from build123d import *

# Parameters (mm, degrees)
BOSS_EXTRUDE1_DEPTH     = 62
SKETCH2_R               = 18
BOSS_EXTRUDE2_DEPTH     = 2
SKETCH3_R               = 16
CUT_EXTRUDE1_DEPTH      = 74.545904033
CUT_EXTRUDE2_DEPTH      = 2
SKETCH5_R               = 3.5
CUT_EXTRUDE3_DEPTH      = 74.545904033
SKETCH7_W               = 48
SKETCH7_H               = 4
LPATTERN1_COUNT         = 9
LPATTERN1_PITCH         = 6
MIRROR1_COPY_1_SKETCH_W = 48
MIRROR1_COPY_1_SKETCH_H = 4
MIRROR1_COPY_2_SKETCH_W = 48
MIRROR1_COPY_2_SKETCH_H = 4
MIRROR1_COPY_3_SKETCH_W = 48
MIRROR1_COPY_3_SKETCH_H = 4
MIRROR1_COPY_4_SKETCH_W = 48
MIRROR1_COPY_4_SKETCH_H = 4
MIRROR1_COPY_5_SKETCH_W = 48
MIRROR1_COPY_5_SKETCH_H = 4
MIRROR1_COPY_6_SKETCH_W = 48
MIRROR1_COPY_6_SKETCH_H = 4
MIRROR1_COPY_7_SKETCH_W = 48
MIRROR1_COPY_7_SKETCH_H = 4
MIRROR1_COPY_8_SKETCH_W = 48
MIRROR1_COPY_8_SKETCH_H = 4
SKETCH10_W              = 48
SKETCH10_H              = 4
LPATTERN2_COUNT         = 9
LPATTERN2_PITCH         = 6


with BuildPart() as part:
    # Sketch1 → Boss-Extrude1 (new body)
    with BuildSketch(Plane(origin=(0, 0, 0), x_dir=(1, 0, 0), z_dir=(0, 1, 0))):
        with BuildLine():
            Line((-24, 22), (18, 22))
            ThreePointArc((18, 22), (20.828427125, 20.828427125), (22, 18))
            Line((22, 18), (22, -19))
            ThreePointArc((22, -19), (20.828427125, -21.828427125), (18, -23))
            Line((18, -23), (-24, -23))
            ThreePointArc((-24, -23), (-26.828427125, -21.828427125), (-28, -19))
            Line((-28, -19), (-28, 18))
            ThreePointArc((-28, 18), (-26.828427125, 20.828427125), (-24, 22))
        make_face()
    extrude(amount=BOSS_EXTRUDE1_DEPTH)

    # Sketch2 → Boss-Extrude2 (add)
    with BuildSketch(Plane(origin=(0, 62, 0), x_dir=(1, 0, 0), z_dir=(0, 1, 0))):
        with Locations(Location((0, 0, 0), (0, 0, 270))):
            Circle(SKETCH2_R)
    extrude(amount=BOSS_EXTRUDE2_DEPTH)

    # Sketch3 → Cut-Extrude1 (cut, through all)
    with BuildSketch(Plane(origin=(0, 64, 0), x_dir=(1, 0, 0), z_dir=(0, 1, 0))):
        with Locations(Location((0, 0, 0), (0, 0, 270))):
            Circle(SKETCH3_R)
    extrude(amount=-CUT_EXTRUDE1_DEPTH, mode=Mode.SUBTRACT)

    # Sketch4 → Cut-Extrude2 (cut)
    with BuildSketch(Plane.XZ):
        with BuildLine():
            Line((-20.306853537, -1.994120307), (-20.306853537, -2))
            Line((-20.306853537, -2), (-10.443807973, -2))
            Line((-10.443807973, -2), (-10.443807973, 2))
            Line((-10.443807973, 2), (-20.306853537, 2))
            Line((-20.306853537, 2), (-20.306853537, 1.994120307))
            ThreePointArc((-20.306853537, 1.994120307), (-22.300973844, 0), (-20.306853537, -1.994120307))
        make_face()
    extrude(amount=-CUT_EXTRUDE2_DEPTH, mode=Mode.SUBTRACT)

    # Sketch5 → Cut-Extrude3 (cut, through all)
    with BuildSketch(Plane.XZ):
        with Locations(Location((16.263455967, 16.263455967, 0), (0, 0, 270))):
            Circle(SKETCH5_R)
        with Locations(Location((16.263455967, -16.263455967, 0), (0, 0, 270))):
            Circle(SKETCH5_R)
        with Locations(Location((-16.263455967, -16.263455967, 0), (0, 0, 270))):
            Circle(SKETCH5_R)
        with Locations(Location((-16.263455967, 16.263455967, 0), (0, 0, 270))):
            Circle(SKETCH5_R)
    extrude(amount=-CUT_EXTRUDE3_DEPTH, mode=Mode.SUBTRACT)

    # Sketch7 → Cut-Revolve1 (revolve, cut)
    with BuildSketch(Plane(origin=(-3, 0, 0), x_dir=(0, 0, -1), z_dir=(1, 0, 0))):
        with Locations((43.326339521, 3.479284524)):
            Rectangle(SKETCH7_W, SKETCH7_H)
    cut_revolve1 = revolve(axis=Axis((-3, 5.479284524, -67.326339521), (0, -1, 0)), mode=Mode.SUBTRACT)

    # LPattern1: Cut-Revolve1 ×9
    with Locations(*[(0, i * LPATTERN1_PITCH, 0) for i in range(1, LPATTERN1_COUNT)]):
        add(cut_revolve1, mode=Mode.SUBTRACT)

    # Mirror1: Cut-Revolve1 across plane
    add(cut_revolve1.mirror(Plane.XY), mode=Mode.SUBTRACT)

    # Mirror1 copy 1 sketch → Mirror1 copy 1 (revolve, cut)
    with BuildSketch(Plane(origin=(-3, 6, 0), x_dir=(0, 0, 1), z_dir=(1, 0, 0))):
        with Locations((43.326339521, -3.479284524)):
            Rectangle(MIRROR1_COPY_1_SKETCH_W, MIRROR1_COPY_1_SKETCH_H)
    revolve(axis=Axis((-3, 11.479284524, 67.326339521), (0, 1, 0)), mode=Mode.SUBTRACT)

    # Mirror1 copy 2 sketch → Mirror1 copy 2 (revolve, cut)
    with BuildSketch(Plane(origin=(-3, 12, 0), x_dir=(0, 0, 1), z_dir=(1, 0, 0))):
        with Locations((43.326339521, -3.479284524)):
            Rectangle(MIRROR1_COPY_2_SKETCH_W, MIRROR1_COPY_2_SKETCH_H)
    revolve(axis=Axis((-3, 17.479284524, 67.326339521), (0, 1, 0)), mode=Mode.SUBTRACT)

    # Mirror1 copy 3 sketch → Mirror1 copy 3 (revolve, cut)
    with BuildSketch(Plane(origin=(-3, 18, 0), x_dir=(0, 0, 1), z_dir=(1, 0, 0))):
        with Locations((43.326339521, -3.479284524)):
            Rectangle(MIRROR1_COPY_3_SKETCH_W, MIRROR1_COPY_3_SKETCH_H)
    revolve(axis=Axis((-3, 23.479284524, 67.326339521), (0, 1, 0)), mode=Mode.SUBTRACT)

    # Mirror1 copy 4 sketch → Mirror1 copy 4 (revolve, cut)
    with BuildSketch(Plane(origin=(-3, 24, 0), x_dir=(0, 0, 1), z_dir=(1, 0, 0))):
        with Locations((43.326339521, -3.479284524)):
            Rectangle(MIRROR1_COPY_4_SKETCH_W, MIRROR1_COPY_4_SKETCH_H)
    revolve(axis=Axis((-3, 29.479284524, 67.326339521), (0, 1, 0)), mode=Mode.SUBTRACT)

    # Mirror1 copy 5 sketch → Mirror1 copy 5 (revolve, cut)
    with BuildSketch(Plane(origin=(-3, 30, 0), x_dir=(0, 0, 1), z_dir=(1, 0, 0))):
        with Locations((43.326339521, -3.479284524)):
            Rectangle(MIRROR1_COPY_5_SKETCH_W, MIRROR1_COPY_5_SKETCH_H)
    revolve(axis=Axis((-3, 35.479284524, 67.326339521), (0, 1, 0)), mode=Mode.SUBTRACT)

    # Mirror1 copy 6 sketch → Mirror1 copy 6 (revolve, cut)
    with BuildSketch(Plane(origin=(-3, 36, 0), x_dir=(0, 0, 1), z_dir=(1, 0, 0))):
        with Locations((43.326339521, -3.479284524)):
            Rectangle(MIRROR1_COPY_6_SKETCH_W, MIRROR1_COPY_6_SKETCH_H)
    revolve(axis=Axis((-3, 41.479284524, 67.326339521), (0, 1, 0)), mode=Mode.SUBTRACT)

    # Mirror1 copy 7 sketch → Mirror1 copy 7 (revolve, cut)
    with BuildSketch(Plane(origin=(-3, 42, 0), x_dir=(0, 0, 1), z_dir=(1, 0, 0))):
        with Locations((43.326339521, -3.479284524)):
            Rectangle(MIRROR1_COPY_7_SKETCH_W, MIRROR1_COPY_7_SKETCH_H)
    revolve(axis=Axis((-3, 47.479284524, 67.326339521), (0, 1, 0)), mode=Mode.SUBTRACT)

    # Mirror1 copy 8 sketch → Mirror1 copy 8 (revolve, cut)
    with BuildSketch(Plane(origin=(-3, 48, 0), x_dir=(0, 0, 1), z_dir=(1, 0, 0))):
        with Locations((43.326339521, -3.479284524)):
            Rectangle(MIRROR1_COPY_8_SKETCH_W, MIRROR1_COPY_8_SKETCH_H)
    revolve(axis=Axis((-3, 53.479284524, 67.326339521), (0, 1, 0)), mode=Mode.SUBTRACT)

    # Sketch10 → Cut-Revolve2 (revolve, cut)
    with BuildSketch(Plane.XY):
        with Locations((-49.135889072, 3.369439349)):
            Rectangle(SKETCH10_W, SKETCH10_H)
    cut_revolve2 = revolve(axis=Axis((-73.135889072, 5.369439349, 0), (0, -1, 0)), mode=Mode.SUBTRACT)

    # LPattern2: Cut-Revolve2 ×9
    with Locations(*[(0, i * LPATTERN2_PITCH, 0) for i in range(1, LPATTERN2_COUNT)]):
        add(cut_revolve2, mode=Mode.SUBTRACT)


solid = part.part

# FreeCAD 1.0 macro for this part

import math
import FreeCAD as App
import Part
import Sketcher

V = App.Vector
Q = App.Units.Quantity


def add_polygon(sketch, points):
    """Adds a closed chain of lines whose ends are joined by coincident constraints."""
    first, n = sketch.GeometryCount, len(points)
    for a, b in zip(points, points[1:] + points[:1]):
        sketch.addGeometry(Part.LineSegment(App.Vector(*a, 0), App.Vector(*b, 0)), False)
    for i in range(n):
        sketch.addConstraint(Sketcher.Constraint("Coincident", first + i, 2, first + (i + 1) % n, 1))

doc = App.newDocument("Part")
body = doc.addObject("PartDesign::Body", "Body")

# Sketch on XZ plane
sketch1 = body.newObject("Sketcher::SketchObject", "Sketch")
sketch1.AttachmentSupport = (doc.getObject("XZ_Plane"), [""])
sketch1.MapMode = "FlatFace"
sketch1.addGeometry(Part.LineSegment(V(18, -22, 0), V(-24, -22, 0)), False)
sketch1.addGeometry(Part.ArcOfCircle(Part.Circle(V(-24, -18, 0), V(0, 0, 1), 4), math.radians(180), math.radians(270)), False)
sketch1.addGeometry(Part.LineSegment(V(-28, -18, 0), V(-28, 19, 0)), False)
sketch1.addGeometry(Part.ArcOfCircle(Part.Circle(V(-24, 19, 0), V(0, 0, 1), 4), math.radians(90), math.radians(180)), False)
sketch1.addGeometry(Part.LineSegment(V(-24, 23, 0), V(18, 23, 0)), False)
sketch1.addGeometry(Part.ArcOfCircle(Part.Circle(V(18, 19, 0), V(0, 0, 1), 4), math.radians(0), math.radians(90)), False)
sketch1.addGeometry(Part.LineSegment(V(22, 19, 0), V(22, -18, 0)), False)
sketch1.addGeometry(Part.ArcOfCircle(Part.Circle(V(18, -18, 0), V(0, 0, 1), 4), math.radians(-90), math.radians(0)), False)
sketch1.addConstraint(Sketcher.Constraint("Tangent", 0, 2, 1, 2))
sketch1.addConstraint(Sketcher.Constraint("Tangent", 1, 1, 2, 1))
sketch1.addConstraint(Sketcher.Constraint("Tangent", 2, 2, 3, 2))
sketch1.addConstraint(Sketcher.Constraint("Tangent", 3, 1, 4, 1))
sketch1.addConstraint(Sketcher.Constraint("Tangent", 4, 2, 5, 2))
sketch1.addConstraint(Sketcher.Constraint("Tangent", 5, 1, 6, 1))
sketch1.addConstraint(Sketcher.Constraint("Tangent", 6, 2, 7, 2))
sketch1.addConstraint(Sketcher.Constraint("Tangent", 7, 1, 0, 1))
sketch1.addConstraint(Sketcher.Constraint("Horizontal", 0))
sketch1.addConstraint(Sketcher.Constraint("Vertical", 2))
sketch1.addConstraint(Sketcher.Constraint("Horizontal", 4))
sketch1.addConstraint(Sketcher.Constraint("Vertical", 6))
sketch1.addConstraint(Sketcher.Constraint("Equal", 1, 3))
sketch1.addConstraint(Sketcher.Constraint("Equal", 3, 5))
sketch1.addConstraint(Sketcher.Constraint("Equal", 5, 7))
sketch1.addConstraint(Sketcher.Constraint("Radius", 1, Q("4 mm")))
sketch1.addConstraint(Sketcher.Constraint("DistanceX", 0, 2, 0, 1, Q("42 mm")))
sketch1.addConstraint(Sketcher.Constraint("DistanceY", 2, 1, 2, 2, Q("37 mm")))
sketch1.addConstraint(Sketcher.Constraint("DistanceX", 1, 3, -1, 1, Q("24 mm")))
sketch1.addConstraint(Sketcher.Constraint("DistanceY", 1, 3, -1, 1, Q("18 mm")))
pad1 = body.newObject("PartDesign::Pad", "Pad")
pad1.Profile = sketch1
pad1.Length = 62
pad1.Reversed = True

# Sketch on XZ plane
sketch2 = body.newObject("Sketcher::SketchObject", "Sketch001")
sketch2.AttachmentSupport = (doc.getObject("XZ_Plane"), [""])
sketch2.MapMode = "FlatFace"
sketch2.AttachmentOffset = App.Placement(V(0, 0, -62), App.Rotation())
sketch2.addGeometry(Part.Circle(V(0, 0, 0), V(0, 0, 1), 18), False)
sketch2.addConstraint(Sketcher.Constraint("Coincident", 0, 3, -1, 1))
sketch2.addConstraint(Sketcher.Constraint("Diameter", 0, Q("36 mm")))
pad2 = body.newObject("PartDesign::Pad", "Pad001")
pad2.Profile = sketch2
pad2.Length = 2
pad2.Reversed = True

# Sketch on XZ plane
sketch3 = body.newObject("Sketcher::SketchObject", "Sketch002")
sketch3.AttachmentSupport = (doc.getObject("XZ_Plane"), [""])
sketch3.MapMode = "FlatFace"
sketch3.AttachmentOffset = App.Placement(V(0, 0, -64), App.Rotation())
sketch3.addGeometry(Part.Circle(V(0, 0, 0), V(0, 0, 1), 16), False)
sketch3.addConstraint(Sketcher.Constraint("Coincident", 0, 3, -1, 1))
sketch3.addConstraint(Sketcher.Constraint("Diameter", 0, Q("32 mm")))
pocket1 = body.newObject("PartDesign::Pocket", "Pocket")
pocket1.Profile = sketch3
pocket1.Type = "ThroughAll"
pocket1.Reversed = True

# Sketch on XZ plane
sketch4 = body.newObject("Sketcher::SketchObject", "Sketch003")
sketch4.AttachmentSupport = (doc.getObject("XZ_Plane"), [""])
sketch4.MapMode = "FlatFace"
sketch4.addGeometry(Part.LineSegment(V(-20.307, -1.994, 0), V(-20.307, -2, 0)), False)
sketch4.addGeometry(Part.LineSegment(V(-20.307, -2, 0), V(-10.444, -2, 0)), False)
sketch4.addGeometry(Part.LineSegment(V(-10.444, -2, 0), V(-10.444, 2, 0)), False)
sketch4.addGeometry(Part.LineSegment(V(-10.444, 2, 0), V(-20.307, 2, 0)), False)
sketch4.addGeometry(Part.LineSegment(V(-20.307, 2, 0), V(-20.307, 1.994, 0)), False)
sketch4.addGeometry(Part.ArcOfCircle(Part.Circle(V(-20.307, 0, 0), V(0, 0, 1), 1.994), math.radians(90), math.radians(270)), False)
sketch4.addConstraint(Sketcher.Constraint("Coincident", 0, 2, 1, 1))
sketch4.addConstraint(Sketcher.Constraint("Coincident", 1, 2, 2, 1))
sketch4.addConstraint(Sketcher.Constraint("Coincident", 2, 2, 3, 1))
sketch4.addConstraint(Sketcher.Constraint("Coincident", 3, 2, 4, 1))
sketch4.addConstraint(Sketcher.Constraint("Coincident", 4, 2, 5, 1))
sketch4.addConstraint(Sketcher.Constraint("Coincident", 5, 2, 0, 1))
sketch4.addConstraint(Sketcher.Constraint("Vertical", 0))
sketch4.addConstraint(Sketcher.Constraint("Horizontal", 1))
sketch4.addConstraint(Sketcher.Constraint("Vertical", 2))
sketch4.addConstraint(Sketcher.Constraint("Horizontal", 3))
sketch4.addConstraint(Sketcher.Constraint("Vertical", 4))
sketch4.addConstraint(Sketcher.Constraint("Symmetric", 0, 2, 3, 2, -1))
sketch4.addConstraint(Sketcher.Constraint("PointOnObject", 5, 3, -1))
sketch4.addConstraint(Sketcher.Constraint("Vertical", 5, 3, 0, 2))
sketch4.addConstraint(Sketcher.Constraint("DistanceY", 2, 1, 2, 2, Q("4 mm")))
sketch4.addConstraint(Sketcher.Constraint("Radius", 5, Q("1.99412 mm")))
sketch4.addConstraint(Sketcher.Constraint("DistanceX", 1, 1, 1, 2, Q("9.863046 mm")))
sketch4.addConstraint(Sketcher.Constraint("DistanceX", 5, 3, -1, 1, Q("20.306854 mm")))
pocket2 = body.newObject("PartDesign::Pocket", "Pocket001")
pocket2.Profile = sketch4
pocket2.Length = 2

# Sketch on XZ plane
sketch5 = body.newObject("Sketcher::SketchObject", "Sketch004")
sketch5.AttachmentSupport = (doc.getObject("XZ_Plane"), [""])
sketch5.MapMode = "FlatFace"
sketch5.addGeometry(Part.Circle(V(16.3, 16.3, 0), V(0, 0, 1), 3.5), False)
sketch5.addGeometry(Part.Circle(V(16.3, -16.3, 0), V(0, 0, 1), 3.5), False)
sketch5.addGeometry(Part.Circle(V(-16.3, -16.3, 0), V(0, 0, 1), 3.5), False)
sketch5.addGeometry(Part.Circle(V(-16.3, 16.3, 0), V(0, 0, 1), 3.5), False)
sketch5.addConstraint(Sketcher.Constraint("Equal", 0, 1))
sketch5.addConstraint(Sketcher.Constraint("Equal", 1, 2))
sketch5.addConstraint(Sketcher.Constraint("Equal", 2, 3))
sketch5.addConstraint(Sketcher.Constraint("Symmetric", 0, 3, 2, 3, -1, 1))
sketch5.addConstraint(Sketcher.Constraint("Symmetric", 1, 3, 3, 3, -1, 1))
sketch5.addConstraint(Sketcher.Constraint("Symmetric", 1, 3, 2, 3, -2))
sketch5.addConstraint(Sketcher.Constraint("Diameter", 0, Q("7 mm")))
sketch5.addConstraint(Sketcher.Constraint("DistanceY", 1, 3, 0, 3, Q("32.526912 mm")))
sketch5.addConstraint(Sketcher.Constraint("DistanceX", 2, 3, 1, 3, Q("32.526912 mm")))
pocket3 = body.newObject("PartDesign::Pocket", "Pocket002")
pocket3.Profile = sketch5
pocket3.Type = "ThroughAll"

# Sketch on YZ plane
sketch6 = body.newObject("Sketcher::SketchObject", "Sketch005")
sketch6.AttachmentSupport = (doc.getObject("YZ_Plane"), [""])
sketch6.MapMode = "FlatFace"
sketch6.AttachmentOffset = App.Placement(V(0, 0, -3), App.Rotation())
add_polygon(sketch6, [(5.5, -19.3), (1.5, -19.3), (1.5, -67.3), (5.5, -67.3)])  # lines 0-3
sketch6.addGeometry(Part.LineSegment(V(5.5, -67.3, 0), V(1.5, -67.3, 0)), True)  # axis
sketch6.addConstraint(Sketcher.Constraint("Horizontal", 0))
sketch6.addConstraint(Sketcher.Constraint("Vertical", 1))
sketch6.addConstraint(Sketcher.Constraint("Horizontal", 2))
sketch6.addConstraint(Sketcher.Constraint("Vertical", 3))
sketch6.addConstraint(Sketcher.Constraint("Horizontal", 4))
sketch6.addConstraint(Sketcher.Constraint("Coincident", 4, 1, 2, 2))
sketch6.addConstraint(Sketcher.Constraint("Vertical", 0, 2, 4, 2))
sketch6.addConstraint(Sketcher.Constraint("DistanceX", 0, 2, 0, 1, Q("4 mm")))
sketch6.addConstraint(Sketcher.Constraint("DistanceY", 1, 2, 1, 1, Q("48 mm")))
sketch6.addConstraint(Sketcher.Constraint("DistanceY", 0, 2, -1, 1, Q("19.32634 mm")))
sketch6.addConstraint(Sketcher.Constraint("DistanceX", -1, 1, 0, 2, Q("1.479285 mm")))
groove = body.newObject("PartDesign::Groove", "Groove")
groove.Profile = sketch6
groove.ReferenceAxis = (sketch6, ["Axis0"])
groove.Angle = 360
doc.recompute()

linearpattern = body.newObject("PartDesign::LinearPattern", "LinearPattern")
linearpattern.Originals = [groove]
linearpattern.Direction = (doc.getObject("Y_Axis"), [""])
linearpattern.Mode = "offset"
linearpattern.Offset = 6
linearpattern.Occurrences = 9
body.Tip = linearpattern
doc.recompute()

mirrored = body.newObject("PartDesign::Mirrored", "Mirrored")
mirrored.Originals = [groove]
mirrored.MirrorPlane = (doc.getObject("XY_Plane"), [""])
body.Tip = mirrored

# Sketch on YZ plane
sketch7 = body.newObject("Sketcher::SketchObject", "Sketch006")
sketch7.AttachmentSupport = (doc.getObject("YZ_Plane"), [""])
sketch7.MapMode = "FlatFace"
sketch7.AttachmentOffset = App.Placement(V(0, 0, -3), App.Rotation())
add_polygon(sketch7, [(7.5, 19.3), (11.5, 19.3), (11.5, 67.3), (7.5, 67.3)])  # lines 0-3
sketch7.addGeometry(Part.LineSegment(V(7.5, 67.3, 0), V(11.5, 67.3, 0)), True)  # axis
sketch7.addConstraint(Sketcher.Constraint("Horizontal", 0))
sketch7.addConstraint(Sketcher.Constraint("Vertical", 1))
sketch7.addConstraint(Sketcher.Constraint("Horizontal", 2))
sketch7.addConstraint(Sketcher.Constraint("Vertical", 3))
sketch7.addConstraint(Sketcher.Constraint("Horizontal", 4))
sketch7.addConstraint(Sketcher.Constraint("Coincident", 4, 1, 2, 2))
sketch7.addConstraint(Sketcher.Constraint("Vertical", 0, 2, 4, 2))
sketch7.addConstraint(Sketcher.Constraint("DistanceX", 0, 1, 0, 2, Q("4 mm")))
sketch7.addConstraint(Sketcher.Constraint("DistanceY", 1, 1, 1, 2, Q("48 mm")))
sketch7.addConstraint(Sketcher.Constraint("DistanceY", -1, 1, 0, 2, Q("19.32634 mm")))
sketch7.addConstraint(Sketcher.Constraint("DistanceX", -1, 1, 0, 2, Q("11.479285 mm")))
groove2 = body.newObject("PartDesign::Groove", "Groove001")
groove2.Profile = sketch7
groove2.ReferenceAxis = (sketch7, ["Axis0"])
groove2.Angle = 360

# Sketch on YZ plane
sketch8 = body.newObject("Sketcher::SketchObject", "Sketch007")
sketch8.AttachmentSupport = (doc.getObject("YZ_Plane"), [""])
sketch8.MapMode = "FlatFace"
sketch8.AttachmentOffset = App.Placement(V(0, 0, -3), App.Rotation())
add_polygon(sketch8, [(13.5, 19.3), (17.5, 19.3), (17.5, 67.3), (13.5, 67.3)])  # lines 0-3
sketch8.addGeometry(Part.LineSegment(V(13.5, 67.3, 0), V(17.5, 67.3, 0)), True)  # axis
sketch8.addConstraint(Sketcher.Constraint("Horizontal", 0))
sketch8.addConstraint(Sketcher.Constraint("Vertical", 1))
sketch8.addConstraint(Sketcher.Constraint("Horizontal", 2))
sketch8.addConstraint(Sketcher.Constraint("Vertical", 3))
sketch8.addConstraint(Sketcher.Constraint("Horizontal", 4))
sketch8.addConstraint(Sketcher.Constraint("Coincident", 4, 1, 2, 2))
sketch8.addConstraint(Sketcher.Constraint("Vertical", 0, 2, 4, 2))
sketch8.addConstraint(Sketcher.Constraint("DistanceX", 0, 1, 0, 2, Q("4 mm")))
sketch8.addConstraint(Sketcher.Constraint("DistanceY", 1, 1, 1, 2, Q("48 mm")))
sketch8.addConstraint(Sketcher.Constraint("DistanceY", -1, 1, 0, 2, Q("19.32634 mm")))
sketch8.addConstraint(Sketcher.Constraint("DistanceX", -1, 1, 0, 2, Q("17.479285 mm")))
groove3 = body.newObject("PartDesign::Groove", "Groove002")
groove3.Profile = sketch8
groove3.ReferenceAxis = (sketch8, ["Axis0"])
groove3.Angle = 360

# Sketch on YZ plane
sketch9 = body.newObject("Sketcher::SketchObject", "Sketch008")
sketch9.AttachmentSupport = (doc.getObject("YZ_Plane"), [""])
sketch9.MapMode = "FlatFace"
sketch9.AttachmentOffset = App.Placement(V(0, 0, -3), App.Rotation())
add_polygon(sketch9, [(19.5, 19.3), (23.5, 19.3), (23.5, 67.3), (19.5, 67.3)])  # lines 0-3
sketch9.addGeometry(Part.LineSegment(V(19.5, 67.3, 0), V(23.5, 67.3, 0)), True)  # axis
sketch9.addConstraint(Sketcher.Constraint("Horizontal", 0))
sketch9.addConstraint(Sketcher.Constraint("Vertical", 1))
sketch9.addConstraint(Sketcher.Constraint("Horizontal", 2))
sketch9.addConstraint(Sketcher.Constraint("Vertical", 3))
sketch9.addConstraint(Sketcher.Constraint("Horizontal", 4))
sketch9.addConstraint(Sketcher.Constraint("Coincident", 4, 1, 2, 2))
sketch9.addConstraint(Sketcher.Constraint("Vertical", 0, 2, 4, 2))
sketch9.addConstraint(Sketcher.Constraint("DistanceX", 0, 1, 0, 2, Q("4 mm")))
sketch9.addConstraint(Sketcher.Constraint("DistanceY", 1, 1, 1, 2, Q("48 mm")))
sketch9.addConstraint(Sketcher.Constraint("DistanceY", -1, 1, 0, 2, Q("19.32634 mm")))
sketch9.addConstraint(Sketcher.Constraint("DistanceX", -1, 1, 0, 2, Q("23.479285 mm")))
groove4 = body.newObject("PartDesign::Groove", "Groove003")
groove4.Profile = sketch9
groove4.ReferenceAxis = (sketch9, ["Axis0"])
groove4.Angle = 360

# Sketch on YZ plane
sketch10 = body.newObject("Sketcher::SketchObject", "Sketch009")
sketch10.AttachmentSupport = (doc.getObject("YZ_Plane"), [""])
sketch10.MapMode = "FlatFace"
sketch10.AttachmentOffset = App.Placement(V(0, 0, -3), App.Rotation())
add_polygon(sketch10, [(25.5, 19.3), (29.5, 19.3), (29.5, 67.3), (25.5, 67.3)])  # lines 0-3
sketch10.addGeometry(Part.LineSegment(V(25.5, 67.3, 0), V(29.5, 67.3, 0)), True)  # axis
sketch10.addConstraint(Sketcher.Constraint("Horizontal", 0))
sketch10.addConstraint(Sketcher.Constraint("Vertical", 1))
sketch10.addConstraint(Sketcher.Constraint("Horizontal", 2))
sketch10.addConstraint(Sketcher.Constraint("Vertical", 3))
sketch10.addConstraint(Sketcher.Constraint("Horizontal", 4))
sketch10.addConstraint(Sketcher.Constraint("Coincident", 4, 1, 2, 2))
sketch10.addConstraint(Sketcher.Constraint("Vertical", 0, 2, 4, 2))
sketch10.addConstraint(Sketcher.Constraint("DistanceX", 0, 1, 0, 2, Q("4 mm")))
sketch10.addConstraint(Sketcher.Constraint("DistanceY", 1, 1, 1, 2, Q("48 mm")))
sketch10.addConstraint(Sketcher.Constraint("DistanceY", -1, 1, 0, 2, Q("19.32634 mm")))
sketch10.addConstraint(Sketcher.Constraint("DistanceX", -1, 1, 0, 2, Q("29.479285 mm")))
groove5 = body.newObject("PartDesign::Groove", "Groove004")
groove5.Profile = sketch10
groove5.ReferenceAxis = (sketch10, ["Axis0"])
groove5.Angle = 360

# Sketch on YZ plane
sketch11 = body.newObject("Sketcher::SketchObject", "Sketch010")
sketch11.AttachmentSupport = (doc.getObject("YZ_Plane"), [""])
sketch11.MapMode = "FlatFace"
sketch11.AttachmentOffset = App.Placement(V(0, 0, -3), App.Rotation())
add_polygon(sketch11, [(31.5, 19.3), (35.5, 19.3), (35.5, 67.3), (31.5, 67.3)])  # lines 0-3
sketch11.addGeometry(Part.LineSegment(V(31.5, 67.3, 0), V(35.5, 67.3, 0)), True)  # axis
sketch11.addConstraint(Sketcher.Constraint("Horizontal", 0))
sketch11.addConstraint(Sketcher.Constraint("Vertical", 1))
sketch11.addConstraint(Sketcher.Constraint("Horizontal", 2))
sketch11.addConstraint(Sketcher.Constraint("Vertical", 3))
sketch11.addConstraint(Sketcher.Constraint("Horizontal", 4))
sketch11.addConstraint(Sketcher.Constraint("Coincident", 4, 1, 2, 2))
sketch11.addConstraint(Sketcher.Constraint("Vertical", 0, 2, 4, 2))
sketch11.addConstraint(Sketcher.Constraint("DistanceX", 0, 1, 0, 2, Q("4 mm")))
sketch11.addConstraint(Sketcher.Constraint("DistanceY", 1, 1, 1, 2, Q("48 mm")))
sketch11.addConstraint(Sketcher.Constraint("DistanceY", -1, 1, 0, 2, Q("19.32634 mm")))
sketch11.addConstraint(Sketcher.Constraint("DistanceX", -1, 1, 0, 2, Q("35.479285 mm")))
groove6 = body.newObject("PartDesign::Groove", "Groove005")
groove6.Profile = sketch11
groove6.ReferenceAxis = (sketch11, ["Axis0"])
groove6.Angle = 360

# Sketch on YZ plane
sketch12 = body.newObject("Sketcher::SketchObject", "Sketch011")
sketch12.AttachmentSupport = (doc.getObject("YZ_Plane"), [""])
sketch12.MapMode = "FlatFace"
sketch12.AttachmentOffset = App.Placement(V(0, 0, -3), App.Rotation())
add_polygon(sketch12, [(37.5, 19.3), (41.5, 19.3), (41.5, 67.3), (37.5, 67.3)])  # lines 0-3
sketch12.addGeometry(Part.LineSegment(V(37.5, 67.3, 0), V(41.5, 67.3, 0)), True)  # axis
sketch12.addConstraint(Sketcher.Constraint("Horizontal", 0))
sketch12.addConstraint(Sketcher.Constraint("Vertical", 1))
sketch12.addConstraint(Sketcher.Constraint("Horizontal", 2))
sketch12.addConstraint(Sketcher.Constraint("Vertical", 3))
sketch12.addConstraint(Sketcher.Constraint("Horizontal", 4))
sketch12.addConstraint(Sketcher.Constraint("Coincident", 4, 1, 2, 2))
sketch12.addConstraint(Sketcher.Constraint("Vertical", 0, 2, 4, 2))
sketch12.addConstraint(Sketcher.Constraint("DistanceX", 0, 1, 0, 2, Q("4 mm")))
sketch12.addConstraint(Sketcher.Constraint("DistanceY", 1, 1, 1, 2, Q("48 mm")))
sketch12.addConstraint(Sketcher.Constraint("DistanceY", -1, 1, 0, 2, Q("19.32634 mm")))
sketch12.addConstraint(Sketcher.Constraint("DistanceX", -1, 1, 0, 2, Q("41.479285 mm")))
groove7 = body.newObject("PartDesign::Groove", "Groove006")
groove7.Profile = sketch12
groove7.ReferenceAxis = (sketch12, ["Axis0"])
groove7.Angle = 360

# Sketch on YZ plane
sketch13 = body.newObject("Sketcher::SketchObject", "Sketch012")
sketch13.AttachmentSupport = (doc.getObject("YZ_Plane"), [""])
sketch13.MapMode = "FlatFace"
sketch13.AttachmentOffset = App.Placement(V(0, 0, -3), App.Rotation())
add_polygon(sketch13, [(43.5, 19.3), (47.5, 19.3), (47.5, 67.3), (43.5, 67.3)])  # lines 0-3
sketch13.addGeometry(Part.LineSegment(V(43.5, 67.3, 0), V(47.5, 67.3, 0)), True)  # axis
sketch13.addConstraint(Sketcher.Constraint("Horizontal", 0))
sketch13.addConstraint(Sketcher.Constraint("Vertical", 1))
sketch13.addConstraint(Sketcher.Constraint("Horizontal", 2))
sketch13.addConstraint(Sketcher.Constraint("Vertical", 3))
sketch13.addConstraint(Sketcher.Constraint("Horizontal", 4))
sketch13.addConstraint(Sketcher.Constraint("Coincident", 4, 1, 2, 2))
sketch13.addConstraint(Sketcher.Constraint("Vertical", 0, 2, 4, 2))
sketch13.addConstraint(Sketcher.Constraint("DistanceX", 0, 1, 0, 2, Q("4 mm")))
sketch13.addConstraint(Sketcher.Constraint("DistanceY", 1, 1, 1, 2, Q("48 mm")))
sketch13.addConstraint(Sketcher.Constraint("DistanceY", -1, 1, 0, 2, Q("19.32634 mm")))
sketch13.addConstraint(Sketcher.Constraint("DistanceX", -1, 1, 0, 2, Q("47.479285 mm")))
groove8 = body.newObject("PartDesign::Groove", "Groove007")
groove8.Profile = sketch13
groove8.ReferenceAxis = (sketch13, ["Axis0"])
groove8.Angle = 360

# Sketch on YZ plane
sketch14 = body.newObject("Sketcher::SketchObject", "Sketch013")
sketch14.AttachmentSupport = (doc.getObject("YZ_Plane"), [""])
sketch14.MapMode = "FlatFace"
sketch14.AttachmentOffset = App.Placement(V(0, 0, -3), App.Rotation())
add_polygon(sketch14, [(49.5, 19.3), (53.5, 19.3), (53.5, 67.3), (49.5, 67.3)])  # lines 0-3
sketch14.addGeometry(Part.LineSegment(V(49.5, 67.3, 0), V(53.5, 67.3, 0)), True)  # axis
sketch14.addConstraint(Sketcher.Constraint("Horizontal", 0))
sketch14.addConstraint(Sketcher.Constraint("Vertical", 1))
sketch14.addConstraint(Sketcher.Constraint("Horizontal", 2))
sketch14.addConstraint(Sketcher.Constraint("Vertical", 3))
sketch14.addConstraint(Sketcher.Constraint("Horizontal", 4))
sketch14.addConstraint(Sketcher.Constraint("Coincident", 4, 1, 2, 2))
sketch14.addConstraint(Sketcher.Constraint("Vertical", 0, 2, 4, 2))
sketch14.addConstraint(Sketcher.Constraint("DistanceX", 0, 1, 0, 2, Q("4 mm")))
sketch14.addConstraint(Sketcher.Constraint("DistanceY", 1, 1, 1, 2, Q("48 mm")))
sketch14.addConstraint(Sketcher.Constraint("DistanceY", -1, 1, 0, 2, Q("19.32634 mm")))
sketch14.addConstraint(Sketcher.Constraint("DistanceX", -1, 1, 0, 2, Q("53.479285 mm")))
groove9 = body.newObject("PartDesign::Groove", "Groove008")
groove9.Profile = sketch14
groove9.ReferenceAxis = (sketch14, ["Axis0"])
groove9.Angle = 360

# Sketch on XY plane
sketch15 = body.newObject("Sketcher::SketchObject", "Sketch014")
sketch15.AttachmentSupport = (doc.getObject("XY_Plane"), [""])
sketch15.MapMode = "FlatFace"
add_polygon(sketch15, [(-73.1, 5.4), (-73.1, 1.4), (-25.1, 1.4), (-25.1, 5.4)])  # lines 0-3
sketch15.addGeometry(Part.LineSegment(V(-73.1, 5.4, 0), V(-73.1, 1.4, 0)), True)  # axis
sketch15.addConstraint(Sketcher.Constraint("Vertical", 0))
sketch15.addConstraint(Sketcher.Constraint("Horizontal", 1))
sketch15.addConstraint(Sketcher.Constraint("Vertical", 2))
sketch15.addConstraint(Sketcher.Constraint("Horizontal", 3))
sketch15.addConstraint(Sketcher.Constraint("Vertical", 4))
sketch15.addConstraint(Sketcher.Constraint("Coincident", 4, 1, 3, 2))
sketch15.addConstraint(Sketcher.Constraint("Horizontal", 1, 2, 4, 2))
sketch15.addConstraint(Sketcher.Constraint("DistanceX", 1, 1, 1, 2, Q("48 mm")))
sketch15.addConstraint(Sketcher.Constraint("DistanceY", 0, 2, 0, 1, Q("4 mm")))
sketch15.addConstraint(Sketcher.Constraint("DistanceX", 0, 2, -1, 1, Q("73.135889 mm")))
sketch15.addConstraint(Sketcher.Constraint("DistanceY", -1, 1, 0, 2, Q("1.369439 mm")))
groove10 = body.newObject("PartDesign::Groove", "Groove009")
groove10.Profile = sketch15
groove10.ReferenceAxis = (sketch15, ["Axis0"])
groove10.Angle = 360
doc.recompute()

linearpattern2 = body.newObject("PartDesign::LinearPattern", "LinearPattern001")
linearpattern2.Originals = [groove10]
linearpattern2.Direction = (doc.getObject("Y_Axis"), [""])
linearpattern2.Mode = "offset"
linearpattern2.Offset = 6
linearpattern2.Occurrences = 9
body.Tip = linearpattern2

doc.recompute()
